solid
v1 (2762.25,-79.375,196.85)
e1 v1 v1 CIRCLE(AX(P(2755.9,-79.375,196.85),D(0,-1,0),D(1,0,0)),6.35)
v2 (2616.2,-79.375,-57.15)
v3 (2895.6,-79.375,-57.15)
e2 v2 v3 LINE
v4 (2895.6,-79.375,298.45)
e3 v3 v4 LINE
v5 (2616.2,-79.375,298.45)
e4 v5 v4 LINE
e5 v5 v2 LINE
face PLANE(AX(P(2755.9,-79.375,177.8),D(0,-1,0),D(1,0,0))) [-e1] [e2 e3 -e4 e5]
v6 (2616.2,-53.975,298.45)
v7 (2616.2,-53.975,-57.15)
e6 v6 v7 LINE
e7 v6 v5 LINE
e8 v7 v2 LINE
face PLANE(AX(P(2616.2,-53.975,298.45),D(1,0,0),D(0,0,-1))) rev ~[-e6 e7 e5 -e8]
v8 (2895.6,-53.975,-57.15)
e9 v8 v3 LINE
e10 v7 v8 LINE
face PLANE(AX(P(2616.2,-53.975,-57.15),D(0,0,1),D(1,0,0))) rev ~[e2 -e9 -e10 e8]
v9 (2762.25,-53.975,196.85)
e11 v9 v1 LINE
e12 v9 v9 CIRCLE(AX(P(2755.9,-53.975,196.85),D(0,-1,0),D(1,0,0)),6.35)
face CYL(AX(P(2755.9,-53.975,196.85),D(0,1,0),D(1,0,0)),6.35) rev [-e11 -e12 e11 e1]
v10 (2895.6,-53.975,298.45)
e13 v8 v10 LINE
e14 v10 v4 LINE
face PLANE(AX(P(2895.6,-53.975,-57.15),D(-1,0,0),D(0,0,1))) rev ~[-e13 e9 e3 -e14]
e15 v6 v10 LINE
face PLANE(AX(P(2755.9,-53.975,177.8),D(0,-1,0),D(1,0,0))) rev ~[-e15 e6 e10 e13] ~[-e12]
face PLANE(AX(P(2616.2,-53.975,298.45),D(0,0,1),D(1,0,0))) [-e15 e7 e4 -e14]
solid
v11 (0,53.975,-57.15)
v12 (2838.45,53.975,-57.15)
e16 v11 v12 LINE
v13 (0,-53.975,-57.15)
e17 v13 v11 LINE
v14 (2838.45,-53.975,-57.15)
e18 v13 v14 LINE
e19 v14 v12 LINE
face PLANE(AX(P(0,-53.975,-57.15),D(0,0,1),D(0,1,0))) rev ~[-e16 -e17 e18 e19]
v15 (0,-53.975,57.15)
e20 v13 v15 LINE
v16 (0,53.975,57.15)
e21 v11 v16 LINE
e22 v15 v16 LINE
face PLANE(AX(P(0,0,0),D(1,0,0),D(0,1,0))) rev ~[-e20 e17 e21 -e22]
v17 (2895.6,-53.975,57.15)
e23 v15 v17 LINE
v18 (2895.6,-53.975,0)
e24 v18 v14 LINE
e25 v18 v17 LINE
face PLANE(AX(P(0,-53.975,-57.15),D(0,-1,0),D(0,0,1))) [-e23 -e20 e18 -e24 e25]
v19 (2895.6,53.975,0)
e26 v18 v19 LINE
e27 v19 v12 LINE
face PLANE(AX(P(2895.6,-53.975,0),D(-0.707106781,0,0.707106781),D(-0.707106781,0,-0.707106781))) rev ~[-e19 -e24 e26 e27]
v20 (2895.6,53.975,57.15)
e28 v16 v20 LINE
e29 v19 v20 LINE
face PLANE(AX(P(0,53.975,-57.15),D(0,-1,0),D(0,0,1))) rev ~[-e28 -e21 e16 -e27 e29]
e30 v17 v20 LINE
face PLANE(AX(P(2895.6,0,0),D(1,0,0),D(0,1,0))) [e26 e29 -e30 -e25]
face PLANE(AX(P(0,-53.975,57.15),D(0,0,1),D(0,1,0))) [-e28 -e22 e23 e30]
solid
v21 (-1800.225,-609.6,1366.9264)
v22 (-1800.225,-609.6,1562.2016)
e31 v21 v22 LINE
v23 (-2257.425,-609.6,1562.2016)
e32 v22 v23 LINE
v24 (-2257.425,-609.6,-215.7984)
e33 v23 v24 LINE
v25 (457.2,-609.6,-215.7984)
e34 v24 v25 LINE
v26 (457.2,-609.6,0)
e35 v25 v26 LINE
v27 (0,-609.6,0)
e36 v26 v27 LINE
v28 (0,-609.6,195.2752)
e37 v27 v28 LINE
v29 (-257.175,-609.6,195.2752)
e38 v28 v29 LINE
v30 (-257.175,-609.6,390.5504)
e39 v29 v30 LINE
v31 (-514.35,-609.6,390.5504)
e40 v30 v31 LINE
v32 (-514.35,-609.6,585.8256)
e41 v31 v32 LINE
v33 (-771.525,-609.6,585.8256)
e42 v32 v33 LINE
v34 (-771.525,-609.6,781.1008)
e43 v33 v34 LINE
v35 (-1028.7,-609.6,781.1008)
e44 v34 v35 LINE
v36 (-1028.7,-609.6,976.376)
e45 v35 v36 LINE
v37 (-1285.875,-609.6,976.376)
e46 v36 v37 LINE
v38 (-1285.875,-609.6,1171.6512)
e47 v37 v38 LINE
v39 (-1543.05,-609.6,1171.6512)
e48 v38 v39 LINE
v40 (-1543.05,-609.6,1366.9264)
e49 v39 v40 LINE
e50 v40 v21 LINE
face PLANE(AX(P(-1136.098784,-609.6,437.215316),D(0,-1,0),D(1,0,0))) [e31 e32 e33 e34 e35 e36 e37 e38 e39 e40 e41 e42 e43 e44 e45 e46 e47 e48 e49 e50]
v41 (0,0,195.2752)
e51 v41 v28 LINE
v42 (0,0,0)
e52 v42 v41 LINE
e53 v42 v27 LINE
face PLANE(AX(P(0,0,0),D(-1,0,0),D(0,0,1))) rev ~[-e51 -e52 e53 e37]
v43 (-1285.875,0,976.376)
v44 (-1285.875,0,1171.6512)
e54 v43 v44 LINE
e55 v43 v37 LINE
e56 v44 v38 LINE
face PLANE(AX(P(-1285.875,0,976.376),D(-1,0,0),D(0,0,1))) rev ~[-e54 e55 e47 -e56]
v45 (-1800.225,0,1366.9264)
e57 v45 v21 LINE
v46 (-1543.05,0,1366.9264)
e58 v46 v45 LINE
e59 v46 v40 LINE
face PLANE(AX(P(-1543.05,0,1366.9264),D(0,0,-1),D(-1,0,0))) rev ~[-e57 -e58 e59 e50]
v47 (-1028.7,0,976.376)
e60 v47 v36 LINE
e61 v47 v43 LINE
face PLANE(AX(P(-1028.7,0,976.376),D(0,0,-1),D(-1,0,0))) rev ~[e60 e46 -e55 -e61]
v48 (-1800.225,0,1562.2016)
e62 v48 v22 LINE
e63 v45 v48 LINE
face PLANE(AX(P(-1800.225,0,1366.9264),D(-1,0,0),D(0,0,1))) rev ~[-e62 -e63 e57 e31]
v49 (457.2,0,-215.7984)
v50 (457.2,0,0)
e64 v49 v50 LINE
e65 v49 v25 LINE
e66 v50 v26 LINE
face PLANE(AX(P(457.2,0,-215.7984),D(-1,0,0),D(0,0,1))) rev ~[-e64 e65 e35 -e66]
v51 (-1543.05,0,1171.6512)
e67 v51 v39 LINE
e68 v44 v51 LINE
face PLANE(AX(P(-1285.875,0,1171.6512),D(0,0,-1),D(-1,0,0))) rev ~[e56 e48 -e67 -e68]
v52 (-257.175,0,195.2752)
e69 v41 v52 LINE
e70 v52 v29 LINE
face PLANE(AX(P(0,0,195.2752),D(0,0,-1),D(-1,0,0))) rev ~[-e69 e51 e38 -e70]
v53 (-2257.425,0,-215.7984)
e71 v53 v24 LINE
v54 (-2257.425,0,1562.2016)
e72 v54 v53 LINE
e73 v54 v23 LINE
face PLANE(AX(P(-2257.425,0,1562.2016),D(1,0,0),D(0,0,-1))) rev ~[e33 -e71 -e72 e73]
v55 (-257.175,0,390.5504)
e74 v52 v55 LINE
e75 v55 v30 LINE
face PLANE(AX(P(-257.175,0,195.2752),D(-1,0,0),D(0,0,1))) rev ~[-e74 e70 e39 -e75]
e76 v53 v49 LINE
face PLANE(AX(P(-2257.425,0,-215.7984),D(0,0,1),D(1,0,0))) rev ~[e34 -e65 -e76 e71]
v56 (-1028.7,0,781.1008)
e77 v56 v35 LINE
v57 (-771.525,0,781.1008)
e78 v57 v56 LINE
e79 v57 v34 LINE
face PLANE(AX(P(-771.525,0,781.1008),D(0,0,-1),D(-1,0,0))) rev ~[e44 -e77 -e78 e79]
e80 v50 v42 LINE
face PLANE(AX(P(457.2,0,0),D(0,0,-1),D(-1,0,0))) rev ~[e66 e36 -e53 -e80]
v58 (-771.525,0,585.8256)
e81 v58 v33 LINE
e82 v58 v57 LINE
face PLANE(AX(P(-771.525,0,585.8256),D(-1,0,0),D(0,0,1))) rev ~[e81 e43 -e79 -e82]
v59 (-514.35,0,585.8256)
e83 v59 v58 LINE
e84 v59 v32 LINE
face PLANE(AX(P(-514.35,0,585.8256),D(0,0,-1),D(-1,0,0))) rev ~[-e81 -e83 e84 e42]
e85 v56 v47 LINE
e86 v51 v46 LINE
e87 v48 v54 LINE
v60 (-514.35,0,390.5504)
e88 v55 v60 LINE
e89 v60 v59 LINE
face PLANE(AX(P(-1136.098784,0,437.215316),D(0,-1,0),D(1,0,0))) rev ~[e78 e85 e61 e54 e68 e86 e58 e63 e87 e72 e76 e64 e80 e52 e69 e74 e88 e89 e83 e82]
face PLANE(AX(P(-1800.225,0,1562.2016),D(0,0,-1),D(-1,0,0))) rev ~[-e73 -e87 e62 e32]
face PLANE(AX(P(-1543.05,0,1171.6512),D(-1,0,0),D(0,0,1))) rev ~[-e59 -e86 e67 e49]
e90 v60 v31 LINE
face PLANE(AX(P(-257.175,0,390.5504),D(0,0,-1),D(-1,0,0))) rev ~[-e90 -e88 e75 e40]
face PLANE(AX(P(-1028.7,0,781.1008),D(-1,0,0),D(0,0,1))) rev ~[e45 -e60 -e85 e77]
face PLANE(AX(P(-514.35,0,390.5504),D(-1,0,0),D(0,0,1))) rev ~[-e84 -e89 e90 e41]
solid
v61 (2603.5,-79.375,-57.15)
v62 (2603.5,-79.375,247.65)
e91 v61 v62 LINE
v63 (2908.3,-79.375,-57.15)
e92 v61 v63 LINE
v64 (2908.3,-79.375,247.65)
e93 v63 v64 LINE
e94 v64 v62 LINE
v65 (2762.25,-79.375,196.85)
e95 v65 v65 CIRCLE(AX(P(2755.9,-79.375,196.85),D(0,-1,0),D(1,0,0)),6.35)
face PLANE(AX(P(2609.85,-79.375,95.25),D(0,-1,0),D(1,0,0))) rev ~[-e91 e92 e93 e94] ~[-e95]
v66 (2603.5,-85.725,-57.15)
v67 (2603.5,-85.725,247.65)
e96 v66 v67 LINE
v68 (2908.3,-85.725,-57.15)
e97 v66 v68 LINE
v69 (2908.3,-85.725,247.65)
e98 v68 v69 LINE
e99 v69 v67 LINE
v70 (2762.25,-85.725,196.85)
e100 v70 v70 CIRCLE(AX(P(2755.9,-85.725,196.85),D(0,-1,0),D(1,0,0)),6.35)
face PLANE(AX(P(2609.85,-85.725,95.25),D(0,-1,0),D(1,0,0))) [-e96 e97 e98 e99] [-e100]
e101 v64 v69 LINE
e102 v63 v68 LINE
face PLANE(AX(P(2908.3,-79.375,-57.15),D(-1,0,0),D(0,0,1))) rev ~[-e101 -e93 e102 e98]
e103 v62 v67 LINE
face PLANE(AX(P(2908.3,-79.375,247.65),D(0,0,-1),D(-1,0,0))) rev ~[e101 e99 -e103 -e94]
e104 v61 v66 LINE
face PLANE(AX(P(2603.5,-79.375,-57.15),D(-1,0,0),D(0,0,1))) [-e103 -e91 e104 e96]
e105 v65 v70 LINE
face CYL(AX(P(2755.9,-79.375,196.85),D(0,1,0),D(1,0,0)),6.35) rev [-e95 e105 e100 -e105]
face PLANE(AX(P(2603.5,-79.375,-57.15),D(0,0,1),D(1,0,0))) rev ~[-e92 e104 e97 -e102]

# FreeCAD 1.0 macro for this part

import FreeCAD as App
import Part
import Sketcher
from FreeCAD import Vector
Q = App.Units.Quantity


def add_polygon(sketch, points):
    """Adds a closed chain of lines whose ends are joined by coincident constraints."""
    first, n = sketch.GeometryCount, len(points)
    for a, b in zip(points, points[1:] + points[:1]):
        sketch.addGeometry(Part.LineSegment(App.Vector(*a, 0), App.Vector(*b, 0)), False)
    for i in range(n):
        sketch.addConstraint(Sketcher.Constraint("Coincident", first + i, 2, first + (i + 1) % n, 1))

doc = App.newDocument("Part")
body = doc.addObject("PartDesign::Body", "Body")

# Sketch on XZ plane
sketch1 = body.newObject("Sketcher::SketchObject", "Sketch")
sketch1.AttachmentSupport = (doc.getObject("XZ_Plane"), [""])
sketch1.MapMode = "FlatFace"
add_polygon(sketch1, [(457, 0), (0, 0), (0, 195), (-257, 195), (-257, 391), (-514, 391), (-514, 586), (-772, 586), (-772, 781), (-1029, 781), (-1029, 976), (-1286, 976), (-1286, 1172), (-1543, 1172), (-1543, 1367), (-1800, 1367), (-1800, 1562), (-2257, 1562), (-2257, -216), (457, -216)])  # lines 0-19
sketch1.addConstraint(Sketcher.Constraint("Horizontal", 0))
sketch1.addConstraint(Sketcher.Constraint("Vertical", 1))
sketch1.addConstraint(Sketcher.Constraint("Horizontal", 2))
sketch1.addConstraint(Sketcher.Constraint("Vertical", 3))
sketch1.addConstraint(Sketcher.Constraint("Horizontal", 4))
sketch1.addConstraint(Sketcher.Constraint("Vertical", 5))
sketch1.addConstraint(Sketcher.Constraint("Horizontal", 6))
sketch1.addConstraint(Sketcher.Constraint("Vertical", 7))
sketch1.addConstraint(Sketcher.Constraint("Horizontal", 8))
sketch1.addConstraint(Sketcher.Constraint("Vertical", 9))
sketch1.addConstraint(Sketcher.Constraint("Horizontal", 10))
sketch1.addConstraint(Sketcher.Constraint("Vertical", 11))
sketch1.addConstraint(Sketcher.Constraint("Horizontal", 12))
sketch1.addConstraint(Sketcher.Constraint("Vertical", 13))
sketch1.addConstraint(Sketcher.Constraint("Horizontal", 14))
sketch1.addConstraint(Sketcher.Constraint("Vertical", 15))
sketch1.addConstraint(Sketcher.Constraint("Horizontal", 16))
sketch1.addConstraint(Sketcher.Constraint("Vertical", 17))
sketch1.addConstraint(Sketcher.Constraint("Horizontal", 18))
sketch1.addConstraint(Sketcher.Constraint("Vertical", 19))
sketch1.addConstraint(Sketcher.Constraint("Coincident", 0, 2, -1, 1))
sketch1.addConstraint(Sketcher.Constraint("Equal", 2, 4))
sketch1.addConstraint(Sketcher.Constraint("Equal", 4, 6))
sketch1.addConstraint(Sketcher.Constraint("Equal", 6, 8))
sketch1.addConstraint(Sketcher.Constraint("Equal", 8, 10))
sketch1.addConstraint(Sketcher.Constraint("Equal", 10, 12))
sketch1.addConstraint(Sketcher.Constraint("Equal", 12, 14))
sketch1.addConstraint(Sketcher.Constraint("Equal", 0, 16))
sketch1.addConstraint(Sketcher.Constraint("Equal", 1, 3))
sketch1.addConstraint(Sketcher.Constraint("Equal", 3, 5))
sketch1.addConstraint(Sketcher.Constraint("Equal", 5, 7))
sketch1.addConstraint(Sketcher.Constraint("Equal", 7, 9))
sketch1.addConstraint(Sketcher.Constraint("Equal", 9, 11))
sketch1.addConstraint(Sketcher.Constraint("Equal", 11, 13))
sketch1.addConstraint(Sketcher.Constraint("Equal", 13, 15))
sketch1.addConstraint(Sketcher.Constraint("DistanceX", 0, 2, 0, 1, Q("18 in")))
sketch1.addConstraint(Sketcher.Constraint("DistanceY", 17, 2, 17, 1, Q("70 in")))
sketch1.addConstraint(Sketcher.Constraint("DistanceX", 8, 2, -1, 1, Q("40.5 in")))
sketch1.addConstraint(Sketcher.Constraint("DistanceY", 1, 1, 1, 2, Q("7.688 in")))
pad1 = body.newObject("PartDesign::Pad", "Pad")
pad1.Profile = sketch1
pad1.Length = Q("24 in")
body2 = doc.addObject("PartDesign::Body", "Body001")

# Sketch on YZ plane
sketch2 = body2.newObject("Sketcher::SketchObject", "Sketch001")
sketch2.AttachmentSupport = (doc.getObject("YZ_Plane001"), [""])
sketch2.MapMode = "FlatFace"
add_polygon(sketch2, [(-54, 57), (-54, -57), (54, -57), (54, 57)])  # lines 0-3
sketch2.addConstraint(Sketcher.Constraint("Vertical", 0))
sketch2.addConstraint(Sketcher.Constraint("Horizontal", 1))
sketch2.addConstraint(Sketcher.Constraint("Vertical", 2))
sketch2.addConstraint(Sketcher.Constraint("Horizontal", 3))
sketch2.addConstraint(Sketcher.Constraint("Symmetric", 0, 2, 2, 2, -1, 1))
sketch2.addConstraint(Sketcher.Constraint("DistanceY", 0, 2, 0, 1, Q("4.5 in")))
sketch2.addConstraint(Sketcher.Constraint("DistanceX", 1, 1, 1, 2, Q("4.25 in")))
pad2 = body2.newObject("PartDesign::Pad", "Pad001")
pad2.Profile = sketch2
pad2.Length = Q("114 in")

# Sketch on XZ plane
sketch3 = body2.newObject("Sketcher::SketchObject", "Sketch002")
sketch3.AttachmentSupport = (doc.getObject("XZ_Plane001"), [""])
sketch3.MapMode = "FlatFace"
sketch3.AttachmentOffset = App.Placement(Vector(0, 0, 2.125 * 25.4), App.Rotation())
add_polygon(sketch3, [(2838, -57), (2896, -57), (2896, 0)])  # lines 0-2
sketch3.addConstraint(Sketcher.Constraint("Horizontal", 0))
sketch3.addConstraint(Sketcher.Constraint("Vertical", 1))
sketch3.addConstraint(Sketcher.Constraint("PointOnObject", 1, 2, -1))
sketch3.addConstraint(Sketcher.Constraint("Equal", 0, 1))
sketch3.addConstraint(Sketcher.Constraint("DistanceX", -1, 1, 0, 2, Q("114 in")))
sketch3.addConstraint(Sketcher.Constraint("DistanceX", 0, 1, 0, 2, Q("2.25 in")))
pocket1 = body2.newObject("PartDesign::Pocket", "Pocket")
pocket1.Profile = sketch3
pocket1.Type = "ThroughAll"
body3 = doc.addObject("PartDesign::Body", "Body002")

# Sketch on XZ plane
sketch4 = body3.newObject("Sketcher::SketchObject", "Sketch003")
sketch4.AttachmentSupport = (doc.getObject("XZ_Plane002"), [""])
sketch4.MapMode = "FlatFace"
sketch4.AttachmentOffset = App.Placement(Vector(0, 0, 2.125 * 25.4), App.Rotation())
add_polygon(sketch4, [(2616, 298), (2616, -57), (2896, -57), (2896, 298)])  # lines 0-3
sketch4.addGeometry(Part.Circle(Vector(2756, 197, 0), Vector(0, 0, 1), 6), False)  # 4
sketch4.addConstraint(Sketcher.Constraint("Vertical", 0))
sketch4.addConstraint(Sketcher.Constraint("Horizontal", 1))
sketch4.addConstraint(Sketcher.Constraint("Vertical", 2))
sketch4.addConstraint(Sketcher.Constraint("Horizontal", 3))
sketch4.addConstraint(Sketcher.Constraint("Diameter", 4, Q("0.5 in")))
sketch4.addConstraint(Sketcher.Constraint("DistanceX", 1, 1, 1, 2, Q("11 in")))
sketch4.addConstraint(Sketcher.Constraint("DistanceY", 0, 2, 0, 1, Q("14 in")))
sketch4.addConstraint(Sketcher.Constraint("DistanceX", -1, 1, 0, 2, Q("103 in")))
sketch4.addConstraint(Sketcher.Constraint("DistanceY", 0, 2, 4, 3, Q("10 in")))
sketch4.addConstraint(Sketcher.Constraint("DistanceX", -1, 1, 4, 3, Q("108.5 in")))
sketch4.addConstraint(Sketcher.Constraint("DistanceY", -1, 1, 4, 3, Q("7.75 in")))
pad3 = body3.newObject("PartDesign::Pad", "Pad002")
pad3.Profile = sketch4
pad3.Length = Q("1 in")
body4 = doc.addObject("PartDesign::Body", "Body003")

# Sketch on XZ plane
sketch5 = body4.newObject("Sketcher::SketchObject", "Sketch004")
sketch5.AttachmentSupport = (doc.getObject("XZ_Plane003"), [""])
sketch5.MapMode = "FlatFace"
sketch5.AttachmentOffset = App.Placement(Vector(0, 0, 3.125 * 25.4), App.Rotation())
add_polygon(sketch5, [(2604, 248), (2604, -57), (2908, -57), (2908, 248)])  # lines 0-3
sketch5.addGeometry(Part.Circle(Vector(2756, 197, 0), Vector(0, 0, 1), 6), False)  # 4
sketch5.addConstraint(Sketcher.Constraint("Vertical", 0))
sketch5.addConstraint(Sketcher.Constraint("Horizontal", 1))
sketch5.addConstraint(Sketcher.Constraint("Vertical", 2))
sketch5.addConstraint(Sketcher.Constraint("Horizontal", 3))
sketch5.addConstraint(Sketcher.Constraint("Equal", 3, 0))
sketch5.addConstraint(Sketcher.Constraint("Diameter", 4, Q("0.5 in")))
sketch5.addConstraint(Sketcher.Constraint("DistanceX", 1, 1, 1, 2, Q("12 in")))
sketch5.addConstraint(Sketcher.Constraint("DistanceX", 0, 2, 4, 3, Q("6 in")))
sketch5.addConstraint(Sketcher.Constraint("DistanceY", 0, 2, 4, 3, Q("10 in")))
sketch5.addConstraint(Sketcher.Constraint("DistanceX", -1, 1, 4, 3, Q("108.5 in")))
sketch5.addConstraint(Sketcher.Constraint("DistanceY", -1, 1, 4, 3, Q("7.75 in")))
pad4 = body4.newObject("PartDesign::Pad", "Pad003")
pad4.Profile = sketch5
pad4.Length = Q("0.25 in")

doc.recompute()
